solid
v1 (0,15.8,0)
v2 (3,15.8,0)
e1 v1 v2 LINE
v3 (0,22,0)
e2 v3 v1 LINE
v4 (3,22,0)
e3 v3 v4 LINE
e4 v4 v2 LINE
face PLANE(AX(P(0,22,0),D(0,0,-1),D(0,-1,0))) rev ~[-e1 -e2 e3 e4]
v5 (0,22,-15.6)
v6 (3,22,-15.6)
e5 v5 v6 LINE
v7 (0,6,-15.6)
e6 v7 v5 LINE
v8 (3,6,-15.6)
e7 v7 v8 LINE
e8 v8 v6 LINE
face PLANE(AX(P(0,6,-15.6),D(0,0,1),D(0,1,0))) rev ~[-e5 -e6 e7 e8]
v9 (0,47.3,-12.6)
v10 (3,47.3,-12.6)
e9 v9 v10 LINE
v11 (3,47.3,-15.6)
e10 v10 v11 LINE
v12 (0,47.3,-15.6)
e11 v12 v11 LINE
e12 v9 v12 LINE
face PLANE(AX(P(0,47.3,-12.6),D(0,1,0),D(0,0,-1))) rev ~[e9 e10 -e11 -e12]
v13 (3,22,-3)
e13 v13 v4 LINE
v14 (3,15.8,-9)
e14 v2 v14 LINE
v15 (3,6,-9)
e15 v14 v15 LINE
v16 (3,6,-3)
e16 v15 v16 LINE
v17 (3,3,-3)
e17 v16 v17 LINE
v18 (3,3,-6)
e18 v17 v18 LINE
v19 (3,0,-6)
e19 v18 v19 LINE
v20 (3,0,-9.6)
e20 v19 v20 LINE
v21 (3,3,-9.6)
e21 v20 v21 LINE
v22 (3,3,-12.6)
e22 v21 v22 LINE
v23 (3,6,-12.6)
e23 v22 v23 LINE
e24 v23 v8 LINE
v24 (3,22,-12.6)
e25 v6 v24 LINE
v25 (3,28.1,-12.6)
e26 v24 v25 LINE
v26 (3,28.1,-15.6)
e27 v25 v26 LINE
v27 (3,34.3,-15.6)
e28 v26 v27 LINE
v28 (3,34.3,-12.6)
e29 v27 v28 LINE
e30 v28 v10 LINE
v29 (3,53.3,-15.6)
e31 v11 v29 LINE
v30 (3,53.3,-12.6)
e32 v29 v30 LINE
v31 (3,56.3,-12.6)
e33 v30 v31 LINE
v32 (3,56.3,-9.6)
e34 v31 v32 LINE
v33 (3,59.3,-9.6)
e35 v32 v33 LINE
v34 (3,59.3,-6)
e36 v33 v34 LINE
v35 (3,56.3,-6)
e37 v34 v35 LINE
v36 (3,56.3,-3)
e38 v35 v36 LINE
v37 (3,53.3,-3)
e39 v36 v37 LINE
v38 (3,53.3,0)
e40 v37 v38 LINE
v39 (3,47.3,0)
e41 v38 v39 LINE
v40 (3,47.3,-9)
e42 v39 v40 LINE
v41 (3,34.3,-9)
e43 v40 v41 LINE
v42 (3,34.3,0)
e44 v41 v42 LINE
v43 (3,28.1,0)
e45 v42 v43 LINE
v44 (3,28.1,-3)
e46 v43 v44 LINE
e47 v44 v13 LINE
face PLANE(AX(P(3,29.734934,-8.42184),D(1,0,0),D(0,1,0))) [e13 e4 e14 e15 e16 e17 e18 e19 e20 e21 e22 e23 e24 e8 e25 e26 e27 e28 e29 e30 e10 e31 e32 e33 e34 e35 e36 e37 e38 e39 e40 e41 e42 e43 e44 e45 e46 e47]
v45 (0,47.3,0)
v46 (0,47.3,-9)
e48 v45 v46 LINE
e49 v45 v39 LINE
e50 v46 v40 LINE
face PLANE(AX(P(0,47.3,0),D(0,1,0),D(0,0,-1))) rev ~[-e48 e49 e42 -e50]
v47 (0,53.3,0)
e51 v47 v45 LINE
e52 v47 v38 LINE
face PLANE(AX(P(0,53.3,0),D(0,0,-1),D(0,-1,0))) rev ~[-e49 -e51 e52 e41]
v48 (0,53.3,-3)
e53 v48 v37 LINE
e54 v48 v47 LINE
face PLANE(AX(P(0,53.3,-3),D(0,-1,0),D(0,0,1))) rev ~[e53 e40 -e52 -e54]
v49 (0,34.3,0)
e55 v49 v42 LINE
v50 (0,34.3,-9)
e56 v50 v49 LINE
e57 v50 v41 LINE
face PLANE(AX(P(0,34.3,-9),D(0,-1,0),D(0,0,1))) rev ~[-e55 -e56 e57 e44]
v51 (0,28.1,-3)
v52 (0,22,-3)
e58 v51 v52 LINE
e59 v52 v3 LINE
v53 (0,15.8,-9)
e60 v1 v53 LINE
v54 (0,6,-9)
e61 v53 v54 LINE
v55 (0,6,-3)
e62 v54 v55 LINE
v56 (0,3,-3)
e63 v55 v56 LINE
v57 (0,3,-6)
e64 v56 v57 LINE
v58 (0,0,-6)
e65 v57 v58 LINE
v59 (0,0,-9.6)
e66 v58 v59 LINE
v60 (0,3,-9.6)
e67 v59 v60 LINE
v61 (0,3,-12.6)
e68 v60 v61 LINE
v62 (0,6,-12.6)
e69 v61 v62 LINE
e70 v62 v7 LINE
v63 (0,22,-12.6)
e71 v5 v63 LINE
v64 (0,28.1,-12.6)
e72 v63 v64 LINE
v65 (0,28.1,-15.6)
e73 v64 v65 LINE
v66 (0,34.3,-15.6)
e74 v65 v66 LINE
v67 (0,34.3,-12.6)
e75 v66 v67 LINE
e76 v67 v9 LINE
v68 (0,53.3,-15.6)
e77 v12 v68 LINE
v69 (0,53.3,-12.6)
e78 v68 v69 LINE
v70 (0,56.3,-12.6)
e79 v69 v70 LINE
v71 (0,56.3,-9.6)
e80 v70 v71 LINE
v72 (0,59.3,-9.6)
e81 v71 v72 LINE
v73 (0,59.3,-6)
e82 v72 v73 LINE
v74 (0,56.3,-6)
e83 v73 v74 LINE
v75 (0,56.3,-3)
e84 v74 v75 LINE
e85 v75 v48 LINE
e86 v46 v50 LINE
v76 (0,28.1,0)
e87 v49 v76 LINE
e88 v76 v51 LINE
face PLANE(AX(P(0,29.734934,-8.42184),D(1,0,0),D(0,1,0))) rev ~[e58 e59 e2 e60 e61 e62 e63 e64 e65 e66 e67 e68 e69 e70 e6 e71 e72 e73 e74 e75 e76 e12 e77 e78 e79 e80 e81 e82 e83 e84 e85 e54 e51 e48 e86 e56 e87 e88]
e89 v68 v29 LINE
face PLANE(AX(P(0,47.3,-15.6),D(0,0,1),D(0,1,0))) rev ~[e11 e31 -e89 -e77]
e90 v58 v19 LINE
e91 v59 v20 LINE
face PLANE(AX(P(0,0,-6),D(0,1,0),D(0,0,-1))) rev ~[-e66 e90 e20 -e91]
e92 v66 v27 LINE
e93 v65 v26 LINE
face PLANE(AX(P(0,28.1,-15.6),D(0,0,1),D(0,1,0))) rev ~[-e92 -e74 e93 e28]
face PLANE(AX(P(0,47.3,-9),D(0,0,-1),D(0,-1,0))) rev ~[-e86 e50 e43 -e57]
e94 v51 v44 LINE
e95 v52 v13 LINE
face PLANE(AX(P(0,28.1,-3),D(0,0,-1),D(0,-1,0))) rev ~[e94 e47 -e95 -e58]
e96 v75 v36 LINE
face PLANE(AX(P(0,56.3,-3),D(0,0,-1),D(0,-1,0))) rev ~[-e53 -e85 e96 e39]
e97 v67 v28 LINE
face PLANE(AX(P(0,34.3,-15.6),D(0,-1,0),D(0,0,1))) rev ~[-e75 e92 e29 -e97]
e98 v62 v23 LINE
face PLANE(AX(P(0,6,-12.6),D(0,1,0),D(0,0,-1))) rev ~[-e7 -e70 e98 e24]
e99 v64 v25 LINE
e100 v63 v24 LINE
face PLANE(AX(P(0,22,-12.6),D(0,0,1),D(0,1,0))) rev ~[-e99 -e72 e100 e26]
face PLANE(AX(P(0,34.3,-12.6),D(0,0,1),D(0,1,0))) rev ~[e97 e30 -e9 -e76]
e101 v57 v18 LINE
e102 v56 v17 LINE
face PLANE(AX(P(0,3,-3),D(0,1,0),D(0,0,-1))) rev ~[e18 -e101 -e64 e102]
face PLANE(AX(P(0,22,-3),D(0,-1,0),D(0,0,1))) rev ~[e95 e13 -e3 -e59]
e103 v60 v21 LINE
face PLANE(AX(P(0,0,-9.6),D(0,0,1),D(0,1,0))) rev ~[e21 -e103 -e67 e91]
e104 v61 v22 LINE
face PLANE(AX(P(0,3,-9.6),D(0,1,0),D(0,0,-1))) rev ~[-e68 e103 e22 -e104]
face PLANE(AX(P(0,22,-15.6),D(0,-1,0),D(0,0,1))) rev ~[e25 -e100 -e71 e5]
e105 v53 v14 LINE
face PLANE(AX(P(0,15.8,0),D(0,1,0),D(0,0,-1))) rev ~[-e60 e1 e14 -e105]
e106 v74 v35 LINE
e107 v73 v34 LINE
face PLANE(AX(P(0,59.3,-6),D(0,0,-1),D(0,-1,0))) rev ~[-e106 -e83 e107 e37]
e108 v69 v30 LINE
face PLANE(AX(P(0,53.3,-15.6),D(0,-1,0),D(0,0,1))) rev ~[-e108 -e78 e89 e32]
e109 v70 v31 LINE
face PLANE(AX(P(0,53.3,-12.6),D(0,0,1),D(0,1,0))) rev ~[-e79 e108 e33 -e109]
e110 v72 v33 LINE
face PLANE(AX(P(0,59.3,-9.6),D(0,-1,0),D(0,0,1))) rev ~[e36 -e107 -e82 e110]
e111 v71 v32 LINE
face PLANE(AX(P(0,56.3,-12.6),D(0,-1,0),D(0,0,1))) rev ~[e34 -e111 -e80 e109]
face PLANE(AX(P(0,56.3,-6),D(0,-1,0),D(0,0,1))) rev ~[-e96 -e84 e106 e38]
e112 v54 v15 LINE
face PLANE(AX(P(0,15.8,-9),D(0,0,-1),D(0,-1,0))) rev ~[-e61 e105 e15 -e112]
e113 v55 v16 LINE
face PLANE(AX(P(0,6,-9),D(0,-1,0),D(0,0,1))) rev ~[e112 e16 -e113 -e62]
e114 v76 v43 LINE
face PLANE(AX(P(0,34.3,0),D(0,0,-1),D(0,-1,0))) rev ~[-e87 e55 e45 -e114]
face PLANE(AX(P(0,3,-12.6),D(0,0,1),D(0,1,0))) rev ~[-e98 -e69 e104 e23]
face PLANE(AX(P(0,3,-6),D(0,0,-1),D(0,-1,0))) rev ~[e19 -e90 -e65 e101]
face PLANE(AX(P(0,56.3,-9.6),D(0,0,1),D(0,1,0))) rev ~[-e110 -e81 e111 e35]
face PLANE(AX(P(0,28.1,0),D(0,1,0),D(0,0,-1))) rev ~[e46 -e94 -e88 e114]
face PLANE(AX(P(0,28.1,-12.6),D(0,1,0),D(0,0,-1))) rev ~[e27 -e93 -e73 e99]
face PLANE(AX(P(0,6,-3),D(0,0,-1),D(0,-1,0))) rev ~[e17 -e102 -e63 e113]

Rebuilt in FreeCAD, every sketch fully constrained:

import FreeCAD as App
import Part
import Sketcher
from FreeCAD import Vector


def add_polygon(sketch, points):
    """Adds a closed chain of lines whose ends are joined by coincident constraints."""
    first, n = sketch.GeometryCount, len(points)
    for a, b in zip(points, points[1:] + points[:1]):
        sketch.addGeometry(Part.LineSegment(App.Vector(*a, 0), App.Vector(*b, 0)), False)
    for i in range(n):
        sketch.addConstraint(Sketcher.Constraint("Coincident", first + i, 2, first + (i + 1) % n, 1))

doc = App.newDocument("Part")
body = doc.addObject("PartDesign::Body", "Body")

sketch1 = doc.addObject("Sketcher::SketchObject", "Sketch")
body.addObject(sketch1)
sketch1.AttachmentSupport = (doc.YZ_Plane, [""])
sketch1.MapMode = "FlatFace"
add_polygon(sketch1, [(3, -6), (0, -6), (0, -9.6), (3, -9.6), (3, -12.6), (6, -12.6), (6, -15.6), (22, -15.6), (22, -12.6), (28.1, -12.6), (28.1, -15.6), (34.3, -15.6), (34.3, -12.6), (47.3, -12.6), (47.3, -15.6), (53.3, -15.6), (53.3, -12.6), (56.3, -12.6), (56.3, -9.6), (59.3, -9.6), (59.3, -6), (56.3, -6), (56.3, -3), (53.3, -3), (53.3, 0), (47.3, 0), (47.3, -9), (34.3, -9), (34.3, 0), (28.1, 0), (28.1, -3), (22, -3), (22, 0), (15.8, 0), (15.8, -9), (6, -9), (6, -3), (3, -3)])
sketch1.addConstraint(Sketcher.Constraint("Horizontal", 0))
sketch1.addConstraint(Sketcher.Constraint("Vertical", 1))
sketch1.addConstraint(Sketcher.Constraint("Horizontal", 2))
sketch1.addConstraint(Sketcher.Constraint("Vertical", 3))
sketch1.addConstraint(Sketcher.Constraint("Horizontal", 4))
sketch1.addConstraint(Sketcher.Constraint("Vertical", 5))
sketch1.addConstraint(Sketcher.Constraint("Horizontal", 6))
sketch1.addConstraint(Sketcher.Constraint("Vertical", 7))
sketch1.addConstraint(Sketcher.Constraint("Horizontal", 8))
sketch1.addConstraint(Sketcher.Constraint("Vertical", 9))
sketch1.addConstraint(Sketcher.Constraint("Horizontal", 10))
sketch1.addConstraint(Sketcher.Constraint("Vertical", 11))
sketch1.addConstraint(Sketcher.Constraint("Horizontal", 12))
sketch1.addConstraint(Sketcher.Constraint("Vertical", 13))
sketch1.addConstraint(Sketcher.Constraint("Horizontal", 14))
sketch1.addConstraint(Sketcher.Constraint("Vertical", 15))
sketch1.addConstraint(Sketcher.Constraint("Horizontal", 16))
sketch1.addConstraint(Sketcher.Constraint("Vertical", 17))
sketch1.addConstraint(Sketcher.Constraint("Horizontal", 18))
sketch1.addConstraint(Sketcher.Constraint("Vertical", 19))
sketch1.addConstraint(Sketcher.Constraint("Horizontal", 20))
sketch1.addConstraint(Sketcher.Constraint("Vertical", 21))
sketch1.addConstraint(Sketcher.Constraint("Horizontal", 22))
sketch1.addConstraint(Sketcher.Constraint("Vertical", 23))
sketch1.addConstraint(Sketcher.Constraint("Horizontal", 24))
sketch1.addConstraint(Sketcher.Constraint("Vertical", 25))
sketch1.addConstraint(Sketcher.Constraint("Horizontal", 26))
sketch1.addConstraint(Sketcher.Constraint("Vertical", 27))
sketch1.addConstraint(Sketcher.Constraint("Horizontal", 28))
sketch1.addConstraint(Sketcher.Constraint("Vertical", 29))
sketch1.addConstraint(Sketcher.Constraint("Horizontal", 30))
sketch1.addConstraint(Sketcher.Constraint("Vertical", 31))
sketch1.addConstraint(Sketcher.Constraint("Horizontal", 32))
sketch1.addConstraint(Sketcher.Constraint("Vertical", 33))
sketch1.addConstraint(Sketcher.Constraint("Horizontal", 34))
sketch1.addConstraint(Sketcher.Constraint("Vertical", 35))
sketch1.addConstraint(Sketcher.Constraint("Horizontal", 36))
sketch1.addConstraint(Sketcher.Constraint("Vertical", 37))
sketch1.addConstraint(Sketcher.Constraint("PointOnObject", 0, 2, -2))
sketch1.addConstraint(Sketcher.Constraint("PointOnObject", 23, 2, -1))
sketch1.addConstraint(Sketcher.Constraint("PointOnObject", 27, 2, -1))
sketch1.addConstraint(Sketcher.Constraint("PointOnObject", 31, 2, -1))
sketch1.addConstraint(Sketcher.Constraint("Horizontal", 4, 2, 7, 2))
sketch1.addConstraint(Sketcher.Constraint("Horizontal", 6, 2, 9, 2))
sketch1.addConstraint(Sketcher.Constraint("Horizontal", 8, 2, 11, 2))
sketch1.addConstraint(Sketcher.Constraint("Horizontal", 10, 2, 13, 2))
sketch1.addConstraint(Sketcher.Constraint("Horizontal", 12, 2, 15, 2))
sketch1.addConstraint(Sketcher.Constraint("Horizontal", 2, 2, 17, 2))
sketch1.addConstraint(Sketcher.Constraint("Horizontal", 0, 2, 19, 2))
sketch1.addConstraint(Sketcher.Constraint("Horizontal", 22, 2, 29, 2))
sketch1.addConstraint(Sketcher.Constraint("Horizontal", 26, 2, 33, 2))
sketch1.addConstraint(Sketcher.Constraint("Horizontal", 30, 2, 35, 2))
sketch1.addConstraint(Sketcher.Constraint("Vertical", 17, 2, 20, 2))
sketch1.addConstraint(Sketcher.Constraint("Vertical", 15, 2, 22, 2))
sketch1.addConstraint(Sketcher.Constraint("Vertical", 13, 2, 24, 2))
sketch1.addConstraint(Sketcher.Constraint("Vertical", 11, 2, 26, 2))
sketch1.addConstraint(Sketcher.Constraint("Vertical", 9, 2, 28, 2))
sketch1.addConstraint(Sketcher.Constraint("Vertical", 7, 2, 30, 2))
sketch1.addConstraint(Sketcher.Constraint("Vertical", 5, 2, 34, 2))
sketch1.addConstraint(Sketcher.Constraint("Vertical", 3, 2, 36, 2))
sketch1.addConstraint(Sketcher.Constraint("Equal", 2, 4))
sketch1.addConstraint(Sketcher.Constraint("Equal", 4, 16))
sketch1.addConstraint(Sketcher.Constraint("Equal", 16, 18))
sketch1.addConstraint(Sketcher.Constraint("Equal", 28, 32))
sketch1.addConstraint(Sketcher.Constraint("Equal", 36, 3))
sketch1.addConstraint(Sketcher.Constraint("Equal", 3, 5))
sketch1.addConstraint(Sketcher.Constraint("Equal", 17, 21))
sketch1.addConstraint(Sketcher.Constraint("Equal", 21, 23))
sketch1.addConstraint(Sketcher.Constraint("Equal", 24, 35))
sketch1.addConstraint(Sketcher.Constraint("DistanceX", 0, 2, 0, 1, 3.0))
sketch1.addConstraint(Sketcher.Constraint("DistanceX", 6, 1, 6, 2, 16.0))
sketch1.addConstraint(Sketcher.Constraint("DistanceX", 12, 1, 12, 2, 13.0))
sketch1.addConstraint(Sketcher.Constraint("DistanceX", 14, 1, 14, 2, 6.0))
sketch1.addConstraint(Sketcher.Constraint("DistanceX", 8, 1, 8, 2, 6.1))
sketch1.addConstraint(Sketcher.Constraint("DistanceX", 10, 1, 10, 2, 6.2))
sketch1.addConstraint(Sketcher.Constraint("DistanceY", 1, 2, 1, 1, 3.6))
pad1 = doc.addObject("PartDesign::Pad", "Pad")
body.addObject(pad1)
pad1.Profile = sketch1
pad1.Length = 3

doc.recompute()
